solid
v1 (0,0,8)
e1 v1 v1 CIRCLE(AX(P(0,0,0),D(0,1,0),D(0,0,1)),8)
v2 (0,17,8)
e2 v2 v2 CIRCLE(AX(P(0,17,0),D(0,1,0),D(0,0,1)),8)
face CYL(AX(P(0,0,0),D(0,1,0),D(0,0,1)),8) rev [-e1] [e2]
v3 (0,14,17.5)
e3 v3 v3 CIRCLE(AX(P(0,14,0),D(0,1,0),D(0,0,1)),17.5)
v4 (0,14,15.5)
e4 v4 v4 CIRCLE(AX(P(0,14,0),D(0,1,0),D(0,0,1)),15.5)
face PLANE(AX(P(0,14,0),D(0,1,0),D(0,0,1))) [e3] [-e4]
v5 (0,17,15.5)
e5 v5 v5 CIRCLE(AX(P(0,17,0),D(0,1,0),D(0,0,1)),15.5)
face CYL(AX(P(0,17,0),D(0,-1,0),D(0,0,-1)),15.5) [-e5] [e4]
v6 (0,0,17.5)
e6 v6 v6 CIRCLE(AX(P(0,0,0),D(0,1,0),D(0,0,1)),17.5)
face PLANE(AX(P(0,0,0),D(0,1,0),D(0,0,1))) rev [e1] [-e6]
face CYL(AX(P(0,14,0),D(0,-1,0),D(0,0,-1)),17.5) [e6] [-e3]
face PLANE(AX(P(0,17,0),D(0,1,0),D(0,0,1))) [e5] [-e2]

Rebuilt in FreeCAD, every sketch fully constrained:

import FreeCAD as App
import Part
import Sketcher
from FreeCAD import Vector
Q = App.Units.Quantity

doc = App.newDocument("Part")
params = doc.addObject("Spreadsheet::Sheet", "Params")
for row, (alias, value) in enumerate([
    ("sketch1_diameter", "35 mm"),
    ("pad1_length", "14 mm"),
    ("sketch2_diameter", "31 mm"),
    ("pad2_length", "3 mm"),
    ("sketch3_diameter", "16 mm"),
], start=1):
    params.set(f"A{row}", alias)
    params.set(f"B{row}", "=" + value)
    params.setAlias(f"B{row}", alias)

body = doc.addObject("PartDesign::Body", "Body")

# Sketch on XZ plane
sketch1 = body.newObject("Sketcher::SketchObject", "Sketch")
sketch1.AttachmentSupport = (doc.getObject("XZ_Plane"), [""])
sketch1.MapMode = "FlatFace"
sketch1.addGeometry(Part.Circle(Vector(0, 0, 0), Vector(0, 0, 1), 18), False)
sketch1.addConstraint(Sketcher.Constraint("Coincident", 0, 3, -1, 1))
sketch1.addConstraint(Sketcher.Constraint("Diameter", 0, Q("35 mm")))
sketch1.setExpression("Constraints[1]", "Params.sketch1_diameter")
pad1 = body.newObject("PartDesign::Pad", "Pad")
pad1.Profile = sketch1
pad1.setExpression("Length", "Params.pad1_length")
pad1.Reversed = True

# Sketch on XZ plane
sketch2 = body.newObject("Sketcher::SketchObject", "Sketch001")
sketch2.AttachmentSupport = (doc.getObject("XZ_Plane"), [""])
sketch2.MapMode = "FlatFace"
sketch2.AttachmentOffset = App.Placement(Vector(0, 0, -14), App.Rotation())
sketch2.addGeometry(Part.Circle(Vector(0, 0, 0), Vector(0, 0, 1), 16), False)
sketch2.addConstraint(Sketcher.Constraint("Coincident", 0, 3, -1, 1))
sketch2.addConstraint(Sketcher.Constraint("Diameter", 0, Q("31 mm")))
sketch2.setExpression("Constraints[1]", "Params.sketch2_diameter")
pad2 = body.newObject("PartDesign::Pad", "Pad001")
pad2.Profile = sketch2
pad2.setExpression("Length", "Params.pad2_length")
pad2.Reversed = True

# Sketch on XZ plane
sketch3 = body.newObject("Sketcher::SketchObject", "Sketch002")
sketch3.AttachmentSupport = (doc.getObject("XZ_Plane"), [""])
sketch3.MapMode = "FlatFace"
sketch3.AttachmentOffset = App.Placement(Vector(0, 0, -17), App.Rotation())
sketch3.addGeometry(Part.Circle(Vector(0, 0, 0), Vector(0, 0, 1), 8), False)
sketch3.addConstraint(Sketcher.Constraint("Coincident", 0, 3, -1, 1))
sketch3.addConstraint(Sketcher.Constraint("Diameter", 0, Q("16 mm")))
sketch3.setExpression("Constraints[1]", "Params.sketch3_diameter")
pocket1 = body.newObject("PartDesign::Pocket", "Pocket")
pocket1.Profile = sketch3
pocket1.Type = "ThroughAll"
pocket1.Reversed = True

doc.recompute()
